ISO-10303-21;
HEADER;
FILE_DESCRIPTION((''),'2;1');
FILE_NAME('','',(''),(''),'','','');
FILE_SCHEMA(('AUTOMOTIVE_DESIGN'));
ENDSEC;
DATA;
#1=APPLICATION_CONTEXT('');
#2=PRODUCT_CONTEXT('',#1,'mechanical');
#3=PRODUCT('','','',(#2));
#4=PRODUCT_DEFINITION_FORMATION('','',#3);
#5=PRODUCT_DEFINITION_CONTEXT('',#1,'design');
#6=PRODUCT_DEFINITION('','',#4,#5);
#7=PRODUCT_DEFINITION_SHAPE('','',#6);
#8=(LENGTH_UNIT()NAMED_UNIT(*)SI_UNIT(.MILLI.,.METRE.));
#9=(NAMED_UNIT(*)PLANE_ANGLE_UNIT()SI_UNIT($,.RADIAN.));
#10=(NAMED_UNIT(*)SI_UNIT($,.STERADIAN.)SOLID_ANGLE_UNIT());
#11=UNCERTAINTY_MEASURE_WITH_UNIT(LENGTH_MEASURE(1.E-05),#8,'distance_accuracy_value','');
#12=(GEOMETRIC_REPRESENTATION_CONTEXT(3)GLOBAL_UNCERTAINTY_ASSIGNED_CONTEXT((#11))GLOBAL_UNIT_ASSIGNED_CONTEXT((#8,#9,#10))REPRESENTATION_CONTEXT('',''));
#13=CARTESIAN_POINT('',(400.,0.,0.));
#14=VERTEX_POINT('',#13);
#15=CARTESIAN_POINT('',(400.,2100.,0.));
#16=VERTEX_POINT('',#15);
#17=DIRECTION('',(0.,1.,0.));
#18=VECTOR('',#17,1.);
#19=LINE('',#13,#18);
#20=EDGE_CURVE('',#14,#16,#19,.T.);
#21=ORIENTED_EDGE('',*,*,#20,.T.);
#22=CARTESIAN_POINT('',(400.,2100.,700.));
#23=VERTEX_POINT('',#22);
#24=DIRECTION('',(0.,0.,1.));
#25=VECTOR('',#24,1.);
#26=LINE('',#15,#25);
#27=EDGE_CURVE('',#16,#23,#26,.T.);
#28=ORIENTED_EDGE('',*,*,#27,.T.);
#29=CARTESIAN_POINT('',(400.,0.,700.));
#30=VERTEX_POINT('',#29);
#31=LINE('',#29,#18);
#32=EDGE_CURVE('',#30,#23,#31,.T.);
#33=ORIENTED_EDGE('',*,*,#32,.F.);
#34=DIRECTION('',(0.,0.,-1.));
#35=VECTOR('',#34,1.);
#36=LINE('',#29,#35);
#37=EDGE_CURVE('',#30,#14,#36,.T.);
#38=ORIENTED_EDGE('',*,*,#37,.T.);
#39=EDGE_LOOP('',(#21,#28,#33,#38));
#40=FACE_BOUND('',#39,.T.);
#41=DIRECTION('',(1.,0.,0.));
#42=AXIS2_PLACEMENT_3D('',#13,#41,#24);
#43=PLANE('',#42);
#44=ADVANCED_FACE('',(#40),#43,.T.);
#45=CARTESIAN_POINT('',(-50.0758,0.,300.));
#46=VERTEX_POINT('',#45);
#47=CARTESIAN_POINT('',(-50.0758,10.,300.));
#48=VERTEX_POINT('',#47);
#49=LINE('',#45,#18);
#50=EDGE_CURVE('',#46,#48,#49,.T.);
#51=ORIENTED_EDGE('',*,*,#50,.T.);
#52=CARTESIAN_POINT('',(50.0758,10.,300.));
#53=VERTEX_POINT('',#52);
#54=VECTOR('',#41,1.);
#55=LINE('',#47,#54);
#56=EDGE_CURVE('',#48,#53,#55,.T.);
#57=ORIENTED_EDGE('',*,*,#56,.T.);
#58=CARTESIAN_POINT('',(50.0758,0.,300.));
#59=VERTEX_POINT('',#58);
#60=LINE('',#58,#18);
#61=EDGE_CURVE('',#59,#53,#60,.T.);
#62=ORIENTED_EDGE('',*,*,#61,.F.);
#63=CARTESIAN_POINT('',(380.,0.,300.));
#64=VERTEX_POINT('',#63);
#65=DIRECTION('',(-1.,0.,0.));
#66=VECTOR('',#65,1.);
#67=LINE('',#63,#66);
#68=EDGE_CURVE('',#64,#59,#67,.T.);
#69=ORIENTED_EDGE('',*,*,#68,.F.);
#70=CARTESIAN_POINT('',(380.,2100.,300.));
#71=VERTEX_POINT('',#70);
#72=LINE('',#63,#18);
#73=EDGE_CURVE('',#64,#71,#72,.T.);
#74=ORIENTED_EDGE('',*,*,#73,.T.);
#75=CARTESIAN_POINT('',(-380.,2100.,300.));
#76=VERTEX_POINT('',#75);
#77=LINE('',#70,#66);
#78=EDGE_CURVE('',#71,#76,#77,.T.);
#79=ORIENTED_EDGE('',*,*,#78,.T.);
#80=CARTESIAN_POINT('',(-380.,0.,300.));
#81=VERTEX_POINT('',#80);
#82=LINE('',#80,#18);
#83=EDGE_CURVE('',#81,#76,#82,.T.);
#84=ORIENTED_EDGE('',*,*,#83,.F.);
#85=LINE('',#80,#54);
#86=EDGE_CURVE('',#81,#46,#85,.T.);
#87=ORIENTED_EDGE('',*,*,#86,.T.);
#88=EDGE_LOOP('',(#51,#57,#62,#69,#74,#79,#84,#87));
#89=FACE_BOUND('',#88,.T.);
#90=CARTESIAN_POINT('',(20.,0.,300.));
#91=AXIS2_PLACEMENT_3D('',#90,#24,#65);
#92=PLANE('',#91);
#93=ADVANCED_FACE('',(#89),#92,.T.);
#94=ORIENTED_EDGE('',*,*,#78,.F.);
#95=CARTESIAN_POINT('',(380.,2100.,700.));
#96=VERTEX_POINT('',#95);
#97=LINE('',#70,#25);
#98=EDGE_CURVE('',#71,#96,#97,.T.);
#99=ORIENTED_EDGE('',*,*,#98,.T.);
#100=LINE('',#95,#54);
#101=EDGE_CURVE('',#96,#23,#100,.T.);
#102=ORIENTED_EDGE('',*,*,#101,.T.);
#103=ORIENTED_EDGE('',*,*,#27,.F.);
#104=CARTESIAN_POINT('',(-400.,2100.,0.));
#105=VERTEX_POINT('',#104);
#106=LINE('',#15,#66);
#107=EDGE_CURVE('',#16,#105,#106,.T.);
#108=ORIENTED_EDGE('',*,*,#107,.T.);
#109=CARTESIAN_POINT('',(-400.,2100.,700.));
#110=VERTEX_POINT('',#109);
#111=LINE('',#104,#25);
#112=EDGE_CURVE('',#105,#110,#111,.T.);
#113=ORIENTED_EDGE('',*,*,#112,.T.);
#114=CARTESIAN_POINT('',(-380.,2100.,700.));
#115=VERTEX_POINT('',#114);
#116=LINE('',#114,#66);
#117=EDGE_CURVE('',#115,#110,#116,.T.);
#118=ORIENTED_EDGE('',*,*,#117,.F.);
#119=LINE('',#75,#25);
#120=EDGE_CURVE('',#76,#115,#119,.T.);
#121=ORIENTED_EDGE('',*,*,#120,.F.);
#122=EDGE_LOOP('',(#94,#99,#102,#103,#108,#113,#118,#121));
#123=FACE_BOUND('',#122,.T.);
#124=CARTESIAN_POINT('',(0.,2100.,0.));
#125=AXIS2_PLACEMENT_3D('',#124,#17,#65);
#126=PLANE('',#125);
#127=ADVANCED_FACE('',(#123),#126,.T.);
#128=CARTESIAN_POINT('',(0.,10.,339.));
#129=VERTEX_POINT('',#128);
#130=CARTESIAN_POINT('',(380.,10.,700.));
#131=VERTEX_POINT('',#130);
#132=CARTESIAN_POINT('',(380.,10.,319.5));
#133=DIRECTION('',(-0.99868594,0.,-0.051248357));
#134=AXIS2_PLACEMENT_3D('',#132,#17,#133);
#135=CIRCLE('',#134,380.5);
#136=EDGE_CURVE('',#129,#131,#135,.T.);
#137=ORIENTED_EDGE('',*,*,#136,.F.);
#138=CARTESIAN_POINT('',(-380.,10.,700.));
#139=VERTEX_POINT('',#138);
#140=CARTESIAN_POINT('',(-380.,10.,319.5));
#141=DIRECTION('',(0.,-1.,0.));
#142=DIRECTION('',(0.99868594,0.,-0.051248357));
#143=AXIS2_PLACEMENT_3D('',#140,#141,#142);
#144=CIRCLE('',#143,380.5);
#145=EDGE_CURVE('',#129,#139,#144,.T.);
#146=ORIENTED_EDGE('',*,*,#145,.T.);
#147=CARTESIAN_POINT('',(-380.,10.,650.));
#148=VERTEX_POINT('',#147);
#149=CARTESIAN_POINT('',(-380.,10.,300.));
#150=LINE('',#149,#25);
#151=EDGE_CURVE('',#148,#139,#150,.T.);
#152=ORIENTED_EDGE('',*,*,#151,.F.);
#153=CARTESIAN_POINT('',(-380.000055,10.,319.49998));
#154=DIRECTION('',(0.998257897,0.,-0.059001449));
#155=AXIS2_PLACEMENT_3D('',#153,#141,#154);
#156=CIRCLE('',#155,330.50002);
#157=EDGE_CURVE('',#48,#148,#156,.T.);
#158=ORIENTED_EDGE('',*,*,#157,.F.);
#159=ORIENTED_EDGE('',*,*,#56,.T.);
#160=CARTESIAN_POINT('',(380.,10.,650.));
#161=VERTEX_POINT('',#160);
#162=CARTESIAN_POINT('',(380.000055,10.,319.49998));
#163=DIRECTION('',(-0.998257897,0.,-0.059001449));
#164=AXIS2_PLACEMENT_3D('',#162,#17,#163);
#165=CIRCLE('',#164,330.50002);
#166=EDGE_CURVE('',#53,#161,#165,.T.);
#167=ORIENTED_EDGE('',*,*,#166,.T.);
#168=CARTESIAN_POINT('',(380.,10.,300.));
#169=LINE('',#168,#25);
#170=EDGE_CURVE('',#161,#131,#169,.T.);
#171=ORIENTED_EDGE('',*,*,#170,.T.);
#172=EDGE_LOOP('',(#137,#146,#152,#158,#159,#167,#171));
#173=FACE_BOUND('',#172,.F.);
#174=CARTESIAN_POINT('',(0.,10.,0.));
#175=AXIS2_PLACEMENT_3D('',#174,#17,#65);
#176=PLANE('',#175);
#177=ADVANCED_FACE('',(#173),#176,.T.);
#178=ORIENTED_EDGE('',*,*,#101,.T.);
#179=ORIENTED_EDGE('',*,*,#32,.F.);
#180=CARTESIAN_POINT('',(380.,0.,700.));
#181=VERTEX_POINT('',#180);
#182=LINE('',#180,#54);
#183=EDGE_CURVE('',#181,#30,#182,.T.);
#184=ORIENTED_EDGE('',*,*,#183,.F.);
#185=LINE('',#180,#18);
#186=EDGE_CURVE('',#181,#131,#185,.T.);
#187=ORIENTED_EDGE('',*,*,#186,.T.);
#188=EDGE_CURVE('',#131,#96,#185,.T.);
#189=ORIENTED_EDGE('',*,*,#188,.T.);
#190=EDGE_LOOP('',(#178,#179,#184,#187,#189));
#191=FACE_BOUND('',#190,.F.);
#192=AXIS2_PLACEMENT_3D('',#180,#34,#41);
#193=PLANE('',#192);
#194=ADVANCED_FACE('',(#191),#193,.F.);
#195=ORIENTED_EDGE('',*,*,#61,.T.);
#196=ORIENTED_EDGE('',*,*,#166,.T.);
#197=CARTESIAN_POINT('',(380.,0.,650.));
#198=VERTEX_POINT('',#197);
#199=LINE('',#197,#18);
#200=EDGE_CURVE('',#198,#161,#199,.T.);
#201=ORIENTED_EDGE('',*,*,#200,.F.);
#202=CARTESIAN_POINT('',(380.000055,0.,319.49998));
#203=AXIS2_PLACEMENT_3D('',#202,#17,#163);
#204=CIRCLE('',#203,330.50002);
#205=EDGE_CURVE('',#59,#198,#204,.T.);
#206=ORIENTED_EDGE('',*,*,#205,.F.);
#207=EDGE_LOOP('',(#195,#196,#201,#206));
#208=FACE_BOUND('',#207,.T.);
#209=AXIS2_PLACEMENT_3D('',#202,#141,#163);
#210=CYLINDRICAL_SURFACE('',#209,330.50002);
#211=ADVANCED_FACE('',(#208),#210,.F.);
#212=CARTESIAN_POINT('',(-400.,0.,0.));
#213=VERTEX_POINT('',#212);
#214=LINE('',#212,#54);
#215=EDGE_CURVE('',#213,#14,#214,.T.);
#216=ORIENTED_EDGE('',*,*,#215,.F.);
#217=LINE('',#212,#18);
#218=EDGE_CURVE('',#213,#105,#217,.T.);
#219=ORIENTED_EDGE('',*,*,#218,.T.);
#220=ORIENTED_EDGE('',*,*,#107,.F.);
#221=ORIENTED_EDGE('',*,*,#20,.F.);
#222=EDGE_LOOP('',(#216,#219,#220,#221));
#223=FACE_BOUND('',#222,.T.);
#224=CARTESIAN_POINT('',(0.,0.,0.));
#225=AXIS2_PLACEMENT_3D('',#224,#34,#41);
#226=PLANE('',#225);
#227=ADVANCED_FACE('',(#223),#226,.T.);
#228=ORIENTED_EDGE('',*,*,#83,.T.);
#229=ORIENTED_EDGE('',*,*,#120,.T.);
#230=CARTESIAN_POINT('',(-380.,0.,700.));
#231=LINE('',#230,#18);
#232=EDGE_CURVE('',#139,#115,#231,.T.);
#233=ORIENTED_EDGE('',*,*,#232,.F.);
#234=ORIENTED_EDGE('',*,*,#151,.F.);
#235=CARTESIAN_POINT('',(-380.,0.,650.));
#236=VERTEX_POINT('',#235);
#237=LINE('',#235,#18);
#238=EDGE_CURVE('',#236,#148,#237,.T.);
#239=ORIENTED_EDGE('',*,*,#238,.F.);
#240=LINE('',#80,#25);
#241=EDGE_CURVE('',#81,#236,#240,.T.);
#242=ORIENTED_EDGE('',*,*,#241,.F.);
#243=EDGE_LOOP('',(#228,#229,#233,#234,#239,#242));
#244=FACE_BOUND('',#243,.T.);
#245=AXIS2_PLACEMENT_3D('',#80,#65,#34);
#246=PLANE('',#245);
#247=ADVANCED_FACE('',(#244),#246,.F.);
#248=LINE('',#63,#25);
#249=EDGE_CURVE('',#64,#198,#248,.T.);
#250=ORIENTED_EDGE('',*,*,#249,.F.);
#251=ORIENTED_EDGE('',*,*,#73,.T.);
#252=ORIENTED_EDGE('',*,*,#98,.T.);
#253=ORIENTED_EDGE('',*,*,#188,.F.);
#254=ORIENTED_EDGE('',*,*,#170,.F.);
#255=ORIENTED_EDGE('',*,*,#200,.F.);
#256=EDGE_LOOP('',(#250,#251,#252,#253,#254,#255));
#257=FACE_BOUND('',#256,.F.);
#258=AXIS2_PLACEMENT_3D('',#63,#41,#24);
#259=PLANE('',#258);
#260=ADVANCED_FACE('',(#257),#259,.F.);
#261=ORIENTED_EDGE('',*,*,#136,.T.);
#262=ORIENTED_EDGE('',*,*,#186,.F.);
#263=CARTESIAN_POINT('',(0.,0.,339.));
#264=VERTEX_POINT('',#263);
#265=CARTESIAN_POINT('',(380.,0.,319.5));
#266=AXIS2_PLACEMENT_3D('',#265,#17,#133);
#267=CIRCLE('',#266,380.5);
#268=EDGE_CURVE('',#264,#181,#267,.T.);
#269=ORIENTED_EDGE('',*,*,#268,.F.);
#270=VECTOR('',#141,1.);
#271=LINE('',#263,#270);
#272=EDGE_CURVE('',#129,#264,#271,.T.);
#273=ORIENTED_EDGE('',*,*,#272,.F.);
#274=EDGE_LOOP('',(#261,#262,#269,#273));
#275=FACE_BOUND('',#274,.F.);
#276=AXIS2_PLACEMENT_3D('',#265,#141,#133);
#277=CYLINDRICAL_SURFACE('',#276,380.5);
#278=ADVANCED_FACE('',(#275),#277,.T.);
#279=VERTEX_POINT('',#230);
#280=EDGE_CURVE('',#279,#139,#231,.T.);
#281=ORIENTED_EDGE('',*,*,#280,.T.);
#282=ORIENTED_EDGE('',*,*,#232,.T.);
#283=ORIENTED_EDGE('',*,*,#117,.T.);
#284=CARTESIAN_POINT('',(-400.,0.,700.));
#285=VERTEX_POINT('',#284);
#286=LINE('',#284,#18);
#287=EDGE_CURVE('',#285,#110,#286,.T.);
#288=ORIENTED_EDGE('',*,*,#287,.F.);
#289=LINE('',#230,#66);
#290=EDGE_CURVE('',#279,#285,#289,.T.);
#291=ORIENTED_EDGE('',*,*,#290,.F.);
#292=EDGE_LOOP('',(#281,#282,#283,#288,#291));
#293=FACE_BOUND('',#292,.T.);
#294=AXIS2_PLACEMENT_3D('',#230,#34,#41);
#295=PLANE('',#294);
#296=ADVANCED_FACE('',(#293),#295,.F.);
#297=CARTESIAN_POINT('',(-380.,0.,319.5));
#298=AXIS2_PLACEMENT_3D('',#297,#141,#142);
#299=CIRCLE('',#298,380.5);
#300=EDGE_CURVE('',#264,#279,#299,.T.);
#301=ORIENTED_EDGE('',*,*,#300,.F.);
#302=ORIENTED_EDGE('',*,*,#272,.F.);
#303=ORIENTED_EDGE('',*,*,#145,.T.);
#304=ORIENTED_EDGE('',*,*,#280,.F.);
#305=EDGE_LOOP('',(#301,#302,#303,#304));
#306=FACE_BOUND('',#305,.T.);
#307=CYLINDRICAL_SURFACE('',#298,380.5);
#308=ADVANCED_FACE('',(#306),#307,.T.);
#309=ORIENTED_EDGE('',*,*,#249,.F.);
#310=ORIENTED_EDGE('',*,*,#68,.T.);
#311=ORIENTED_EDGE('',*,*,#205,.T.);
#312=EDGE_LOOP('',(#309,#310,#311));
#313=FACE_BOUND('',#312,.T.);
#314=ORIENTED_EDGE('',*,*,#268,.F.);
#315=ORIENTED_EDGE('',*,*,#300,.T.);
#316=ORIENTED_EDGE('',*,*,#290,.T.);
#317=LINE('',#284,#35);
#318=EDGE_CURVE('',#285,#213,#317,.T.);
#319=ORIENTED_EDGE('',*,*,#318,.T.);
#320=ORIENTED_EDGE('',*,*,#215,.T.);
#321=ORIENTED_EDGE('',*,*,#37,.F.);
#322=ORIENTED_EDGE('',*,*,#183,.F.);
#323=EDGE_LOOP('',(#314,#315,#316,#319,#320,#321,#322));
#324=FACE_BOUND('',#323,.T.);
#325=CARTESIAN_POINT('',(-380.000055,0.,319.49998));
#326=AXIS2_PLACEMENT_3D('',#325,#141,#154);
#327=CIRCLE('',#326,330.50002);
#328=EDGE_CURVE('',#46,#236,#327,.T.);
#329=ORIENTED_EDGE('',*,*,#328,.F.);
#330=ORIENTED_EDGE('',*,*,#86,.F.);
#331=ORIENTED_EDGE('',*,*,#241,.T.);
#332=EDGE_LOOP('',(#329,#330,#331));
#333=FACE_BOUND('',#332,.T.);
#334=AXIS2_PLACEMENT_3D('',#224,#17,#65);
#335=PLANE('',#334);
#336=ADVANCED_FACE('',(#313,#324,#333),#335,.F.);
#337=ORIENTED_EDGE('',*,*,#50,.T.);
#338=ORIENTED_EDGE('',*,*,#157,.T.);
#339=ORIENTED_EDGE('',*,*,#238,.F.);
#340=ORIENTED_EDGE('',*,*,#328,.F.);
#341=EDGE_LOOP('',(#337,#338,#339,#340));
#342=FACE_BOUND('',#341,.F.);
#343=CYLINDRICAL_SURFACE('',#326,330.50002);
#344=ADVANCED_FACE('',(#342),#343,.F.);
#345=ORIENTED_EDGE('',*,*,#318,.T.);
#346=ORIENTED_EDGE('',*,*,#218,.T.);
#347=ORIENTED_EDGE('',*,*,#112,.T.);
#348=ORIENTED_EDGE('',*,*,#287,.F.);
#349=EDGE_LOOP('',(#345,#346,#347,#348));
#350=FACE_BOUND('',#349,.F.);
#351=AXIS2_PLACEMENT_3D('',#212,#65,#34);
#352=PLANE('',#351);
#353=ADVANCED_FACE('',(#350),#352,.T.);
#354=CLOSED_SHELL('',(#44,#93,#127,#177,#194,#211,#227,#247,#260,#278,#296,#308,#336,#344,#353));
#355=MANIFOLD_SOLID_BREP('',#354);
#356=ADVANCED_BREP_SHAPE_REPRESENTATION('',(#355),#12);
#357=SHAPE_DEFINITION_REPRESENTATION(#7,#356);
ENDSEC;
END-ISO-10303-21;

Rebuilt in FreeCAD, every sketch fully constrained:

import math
import FreeCAD as App
import Part
import Sketcher
Q = App.Units.Quantity


def add_polygon(sketch, points):
    """Adds a closed chain of lines whose ends are joined by coincident constraints."""
    first, n = sketch.GeometryCount, len(points)
    for a, b in zip(points, points[1:] + points[:1]):
        sketch.addGeometry(Part.LineSegment(App.Vector(*a, 0), App.Vector(*b, 0)), False)
    for i in range(n):
        sketch.addConstraint(Sketcher.Constraint("Coincident", first + i, 2, first + (i + 1) % n, 1))

doc = App.newDocument("Part")
body = doc.addObject("PartDesign::Body", "Body")

# Sketch on XZ plane
sketch1 = doc.addObject("Sketcher::SketchObject", "Sketch")
body.addObject(sketch1)
sketch1.AttachmentSupport = (doc.XZ_Plane, [""])
sketch1.MapMode = "FlatFace"
add_polygon(sketch1, [(400, 0), (0, 0), (0, 300), (380, 300), (380, 700), (400, 700)])  # lines 0-5
sketch1.addConstraint([
    Sketcher.Constraint("Horizontal", 0),
    Sketcher.Constraint("Vertical", 1),
    Sketcher.Constraint("Horizontal", 2),
    Sketcher.Constraint("Vertical", 3),
    Sketcher.Constraint("Horizontal", 4),
    Sketcher.Constraint("Vertical", 5),
    Sketcher.Constraint("Coincident", 0, 2, -1, 1),
    Sketcher.Constraint("Equal", 0, 3),
    Sketcher.Constraint("DistanceX", 0, 2, 0, 1, Q("400 mm")),
    Sketcher.Constraint("DistanceX", 4, 1, 4, 2, Q("20 mm")),
    Sketcher.Constraint("DistanceY", 1, 1, 1, 2, Q("300 mm")),
])
pad1 = doc.addObject("PartDesign::Pad", "Pad")
body.addObject(pad1)
pad1.Profile = sketch1
pad1.Length = 2100
pad1.Reversed = True

# Sketch on XZ plane
sketch2 = doc.addObject("Sketcher::SketchObject", "Sketch001")
body.addObject(sketch2)
sketch2.AttachmentSupport = (doc.XZ_Plane, [""])
sketch2.MapMode = "FlatFace"
sketch2.addGeometry([
    Part.LineSegment(App.Vector(50.0758, 300, 0), App.Vector(0, 300, 0)),
    Part.ArcOfCircle(Part.Circle(App.Vector(380, 319.5, 0), App.Vector(0, 0, 1), 380.5), math.radians(90), math.radians(182.937601)),
    Part.LineSegment(App.Vector(380, 700, 0), App.Vector(380, 650, 0)),
    Part.ArcOfCircle(Part.Circle(App.Vector(380, 319.5, 0), App.Vector(0, 0, 1), 330.499966), math.radians(90), math.radians(183.382502)),
], False)
sketch2.addConstraint([
    Sketcher.Constraint("Coincident", 0, 2, 1, 2),
    Sketcher.Constraint("Coincident", 1, 1, 2, 1),
    Sketcher.Constraint("Coincident", 2, 2, 3, 1),
    Sketcher.Constraint("Coincident", 3, 2, 0, 1),
    Sketcher.Constraint("Horizontal", 0),
    Sketcher.Constraint("Vertical", 2),
    Sketcher.Constraint("Coincident", 3, 3, 1, 3),
    Sketcher.Constraint("PointOnObject", 0, 2, -2),
    Sketcher.Constraint("Vertical", 3, 3, 1, 1),
    Sketcher.Constraint("DistanceY", 2, 2, 2, 1, Q("50 mm")),
    Sketcher.Constraint("Radius", 1, Q("380.5 mm")),
    Sketcher.Constraint("DistanceX", -1, 1, 1, 3, Q("380 mm")),
    Sketcher.Constraint("DistanceY", -1, 1, 0, 2, Q("300 mm")),
])
pad2 = doc.addObject("PartDesign::Pad", "Pad001")
body.addObject(pad2)
pad2.Profile = sketch2
pad2.Length = 10
pad2.Reversed = True
doc.recompute()

mirrored = doc.addObject("PartDesign::Mirrored", "Mirrored")
body.addObject(mirrored)
mirrored.Originals = [pad1, pad2]
mirrored.MirrorPlane = (doc.YZ_Plane, [""])
body.Tip = mirrored

doc.recompute()
